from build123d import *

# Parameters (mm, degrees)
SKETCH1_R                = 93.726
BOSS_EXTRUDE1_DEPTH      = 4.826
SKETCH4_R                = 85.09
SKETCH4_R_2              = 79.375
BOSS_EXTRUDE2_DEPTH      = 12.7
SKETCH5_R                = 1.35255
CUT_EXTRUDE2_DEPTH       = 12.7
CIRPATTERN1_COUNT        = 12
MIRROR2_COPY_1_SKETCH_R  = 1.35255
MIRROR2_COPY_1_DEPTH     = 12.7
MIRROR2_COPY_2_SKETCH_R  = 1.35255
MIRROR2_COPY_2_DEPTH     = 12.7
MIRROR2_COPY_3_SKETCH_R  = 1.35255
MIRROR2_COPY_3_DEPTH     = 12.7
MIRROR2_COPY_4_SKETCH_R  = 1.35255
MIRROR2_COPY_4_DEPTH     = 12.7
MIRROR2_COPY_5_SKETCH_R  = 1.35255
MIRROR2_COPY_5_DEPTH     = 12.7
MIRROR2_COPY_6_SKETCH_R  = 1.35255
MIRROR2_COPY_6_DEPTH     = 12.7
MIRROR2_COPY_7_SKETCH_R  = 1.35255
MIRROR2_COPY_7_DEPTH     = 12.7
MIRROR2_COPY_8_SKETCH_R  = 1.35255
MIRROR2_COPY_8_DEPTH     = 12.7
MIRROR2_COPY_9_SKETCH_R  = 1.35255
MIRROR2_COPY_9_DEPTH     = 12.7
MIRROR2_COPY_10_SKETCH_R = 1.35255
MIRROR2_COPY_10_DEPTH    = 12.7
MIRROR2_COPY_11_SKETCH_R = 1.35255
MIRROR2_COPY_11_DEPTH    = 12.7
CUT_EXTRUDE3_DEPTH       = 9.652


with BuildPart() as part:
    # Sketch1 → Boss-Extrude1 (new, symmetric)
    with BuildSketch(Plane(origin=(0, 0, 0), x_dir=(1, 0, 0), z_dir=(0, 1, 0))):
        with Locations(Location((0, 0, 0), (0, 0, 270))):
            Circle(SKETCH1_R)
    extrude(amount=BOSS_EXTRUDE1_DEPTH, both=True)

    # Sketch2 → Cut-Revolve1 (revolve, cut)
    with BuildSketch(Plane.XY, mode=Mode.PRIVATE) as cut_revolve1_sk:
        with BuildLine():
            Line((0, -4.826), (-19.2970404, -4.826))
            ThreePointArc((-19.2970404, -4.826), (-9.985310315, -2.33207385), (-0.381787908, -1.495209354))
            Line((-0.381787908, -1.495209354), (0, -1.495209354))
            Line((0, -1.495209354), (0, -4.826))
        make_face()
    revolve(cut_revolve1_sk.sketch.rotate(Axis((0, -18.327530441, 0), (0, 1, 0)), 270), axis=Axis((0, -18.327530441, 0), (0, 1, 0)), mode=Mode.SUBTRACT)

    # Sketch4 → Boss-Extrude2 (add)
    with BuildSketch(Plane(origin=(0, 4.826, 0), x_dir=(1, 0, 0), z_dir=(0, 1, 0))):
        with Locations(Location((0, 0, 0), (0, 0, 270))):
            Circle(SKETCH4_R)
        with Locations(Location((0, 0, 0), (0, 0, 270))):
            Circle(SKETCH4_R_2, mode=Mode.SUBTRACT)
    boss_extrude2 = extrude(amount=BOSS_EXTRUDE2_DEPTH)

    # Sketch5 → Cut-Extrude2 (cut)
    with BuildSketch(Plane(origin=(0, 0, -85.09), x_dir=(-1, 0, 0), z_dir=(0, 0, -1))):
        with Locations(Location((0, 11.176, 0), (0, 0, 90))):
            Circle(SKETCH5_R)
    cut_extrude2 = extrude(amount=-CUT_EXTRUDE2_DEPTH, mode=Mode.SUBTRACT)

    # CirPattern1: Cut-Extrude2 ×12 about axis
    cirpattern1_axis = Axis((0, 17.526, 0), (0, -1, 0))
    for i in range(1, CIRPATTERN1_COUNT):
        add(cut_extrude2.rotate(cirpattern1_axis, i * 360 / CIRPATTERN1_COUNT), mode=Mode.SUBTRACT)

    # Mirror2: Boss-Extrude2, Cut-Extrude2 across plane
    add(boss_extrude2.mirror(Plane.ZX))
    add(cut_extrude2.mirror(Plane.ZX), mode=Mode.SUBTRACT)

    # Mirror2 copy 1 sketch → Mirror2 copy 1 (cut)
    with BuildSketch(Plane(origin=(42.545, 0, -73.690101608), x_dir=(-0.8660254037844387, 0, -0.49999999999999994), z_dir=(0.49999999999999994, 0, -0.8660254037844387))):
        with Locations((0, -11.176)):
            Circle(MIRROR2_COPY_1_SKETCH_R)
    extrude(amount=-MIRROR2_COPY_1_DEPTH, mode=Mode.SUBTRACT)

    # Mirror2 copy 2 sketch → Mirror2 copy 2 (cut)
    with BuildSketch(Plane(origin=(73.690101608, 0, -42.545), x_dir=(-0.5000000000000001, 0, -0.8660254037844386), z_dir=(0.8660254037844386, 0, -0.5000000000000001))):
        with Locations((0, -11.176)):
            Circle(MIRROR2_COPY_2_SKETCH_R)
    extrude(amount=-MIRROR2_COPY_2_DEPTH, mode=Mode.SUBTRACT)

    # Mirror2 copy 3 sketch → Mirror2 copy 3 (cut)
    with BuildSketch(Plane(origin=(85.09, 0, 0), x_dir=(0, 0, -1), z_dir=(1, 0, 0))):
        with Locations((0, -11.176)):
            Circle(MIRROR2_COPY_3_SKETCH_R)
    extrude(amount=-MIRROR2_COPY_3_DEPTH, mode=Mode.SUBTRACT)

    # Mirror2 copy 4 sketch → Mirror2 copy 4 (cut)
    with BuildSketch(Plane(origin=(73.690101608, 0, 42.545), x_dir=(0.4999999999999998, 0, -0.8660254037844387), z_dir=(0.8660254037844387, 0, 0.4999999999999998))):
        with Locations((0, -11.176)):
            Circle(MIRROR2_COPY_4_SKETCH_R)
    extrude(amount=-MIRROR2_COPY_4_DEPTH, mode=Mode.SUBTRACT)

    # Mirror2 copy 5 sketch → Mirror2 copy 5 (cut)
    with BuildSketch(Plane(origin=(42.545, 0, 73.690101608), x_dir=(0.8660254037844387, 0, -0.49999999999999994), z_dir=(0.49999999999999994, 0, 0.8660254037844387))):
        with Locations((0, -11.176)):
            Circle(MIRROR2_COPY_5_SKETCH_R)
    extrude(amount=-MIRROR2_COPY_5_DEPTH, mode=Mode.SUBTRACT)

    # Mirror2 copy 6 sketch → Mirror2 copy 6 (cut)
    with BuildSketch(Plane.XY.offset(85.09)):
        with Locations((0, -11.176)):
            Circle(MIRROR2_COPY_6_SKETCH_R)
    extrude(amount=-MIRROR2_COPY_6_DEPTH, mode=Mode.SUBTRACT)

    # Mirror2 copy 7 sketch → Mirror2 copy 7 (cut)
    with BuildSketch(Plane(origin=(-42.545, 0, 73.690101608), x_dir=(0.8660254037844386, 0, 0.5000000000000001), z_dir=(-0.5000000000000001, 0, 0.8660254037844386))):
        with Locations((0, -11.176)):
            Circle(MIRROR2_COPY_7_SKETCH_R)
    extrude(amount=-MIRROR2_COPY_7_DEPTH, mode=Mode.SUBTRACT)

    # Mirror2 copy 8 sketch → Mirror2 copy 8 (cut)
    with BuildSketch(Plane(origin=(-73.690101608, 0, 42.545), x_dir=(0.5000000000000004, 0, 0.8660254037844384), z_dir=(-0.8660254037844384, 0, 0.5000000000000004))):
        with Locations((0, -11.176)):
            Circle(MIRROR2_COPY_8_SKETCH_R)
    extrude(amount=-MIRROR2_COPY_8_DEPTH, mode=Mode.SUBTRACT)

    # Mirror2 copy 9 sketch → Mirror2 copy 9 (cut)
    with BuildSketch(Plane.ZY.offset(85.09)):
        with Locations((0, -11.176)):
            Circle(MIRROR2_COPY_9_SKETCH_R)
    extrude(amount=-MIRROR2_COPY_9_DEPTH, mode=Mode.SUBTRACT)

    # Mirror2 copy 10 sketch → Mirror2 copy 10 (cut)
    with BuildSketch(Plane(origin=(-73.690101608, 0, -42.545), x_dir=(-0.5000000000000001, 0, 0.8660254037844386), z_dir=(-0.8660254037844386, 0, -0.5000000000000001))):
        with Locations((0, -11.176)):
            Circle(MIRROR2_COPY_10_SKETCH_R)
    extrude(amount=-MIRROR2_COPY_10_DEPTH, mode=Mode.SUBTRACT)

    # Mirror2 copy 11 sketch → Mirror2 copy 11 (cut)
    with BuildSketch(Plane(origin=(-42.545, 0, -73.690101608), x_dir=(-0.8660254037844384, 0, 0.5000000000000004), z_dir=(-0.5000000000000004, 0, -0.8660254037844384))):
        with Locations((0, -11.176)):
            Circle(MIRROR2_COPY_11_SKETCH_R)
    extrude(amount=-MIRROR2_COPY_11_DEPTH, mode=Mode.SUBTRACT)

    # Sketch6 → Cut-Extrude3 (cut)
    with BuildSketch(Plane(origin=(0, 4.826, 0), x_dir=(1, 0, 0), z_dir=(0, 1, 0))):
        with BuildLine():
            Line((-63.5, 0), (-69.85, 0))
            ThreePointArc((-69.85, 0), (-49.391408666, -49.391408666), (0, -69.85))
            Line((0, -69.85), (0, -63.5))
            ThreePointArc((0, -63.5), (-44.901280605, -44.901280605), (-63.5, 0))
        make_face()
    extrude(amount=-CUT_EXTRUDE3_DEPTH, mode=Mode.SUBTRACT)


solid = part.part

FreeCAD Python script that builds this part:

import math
import FreeCAD as App
import Part
import Sketcher
from FreeCAD import Vector
Q = App.Units.Quantity

doc = App.newDocument("Part")
body = doc.addObject("PartDesign::Body", "Body")

# Sketch on XZ plane
sketch1 = body.newObject("Sketcher::SketchObject", "Sketch")
sketch1.AttachmentSupport = (doc.getObject("XZ_Plane"), [""])
sketch1.MapMode = "FlatFace"
sketch1.addGeometry(Part.Circle(Vector(0, 0, 0), Vector(0, 0, 1), 94), False)
sketch1.addConstraint(Sketcher.Constraint("Coincident", 0, 3, -1, 1))
sketch1.addConstraint(Sketcher.Constraint("Diameter", 0, Q("7.38 in")))
pad1 = body.newObject("PartDesign::Pad", "Pad")
pad1.Profile = sketch1
pad1.Length = Q("0.38 in")
pad1.Midplane = True

# Sketch on XY plane
sketch2 = body.newObject("Sketcher::SketchObject", "Sketch001")
sketch2.AttachmentSupport = (doc.getObject("XY_Plane"), [""])
sketch2.MapMode = "FlatFace"
sketch2.addGeometry(Part.LineSegment(Vector(-19.3, -4.83, 0), Vector(0, -4.83, 0)), False)
sketch2.addGeometry(Part.LineSegment(Vector(0, -4.83, 0), Vector(0, -1.5, 0)), False)
sketch2.addGeometry(Part.LineSegment(Vector(0, -1.5, 0), Vector(-0.38, -1.5, 0)), False)
sketch2.addGeometry(Part.ArcOfCircle(Part.Circle(Vector(-0.41, -56.73, 0), Vector(0, 0, 1), 55.23), math.radians(90), math.radians(110)), False)
sketch2.addConstraint(Sketcher.Constraint("Coincident", 0, 2, 1, 1))
sketch2.addConstraint(Sketcher.Constraint("Coincident", 1, 2, 2, 1))
sketch2.addConstraint(Sketcher.Constraint("Coincident", 2, 2, 3, 1))
sketch2.addConstraint(Sketcher.Constraint("Coincident", 3, 2, 0, 1))
sketch2.addConstraint(Sketcher.Constraint("Horizontal", 0))
sketch2.addConstraint(Sketcher.Constraint("Vertical", 1))
sketch2.addConstraint(Sketcher.Constraint("Horizontal", 2))
sketch2.addConstraint(Sketcher.Constraint("PointOnObject", 0, 2, -2))
sketch2.addConstraint(Sketcher.Constraint("DistanceY", 0, 2, -1, 1, Q("0.19 in")))
sketch2.addConstraint(Sketcher.Constraint("Radius", 3, 55.230234))
sketch2.addConstraint(Sketcher.Constraint("DistanceX", 0, 1, 0, 2, 19.29704))
sketch2.addConstraint(Sketcher.Constraint("DistanceY", 1, 1, 1, 2, 3.330791))
sketch2.addConstraint(Sketcher.Constraint("DistanceX", 2, 2, 2, 1, 0.381788))
groove = body.newObject("PartDesign::Groove", "Groove")
groove.Profile = sketch2
groove.ReferenceAxis = (sketch2, ["V_Axis"])
groove.Angle = 360

# Sketch on XZ plane
sketch3 = body.newObject("Sketcher::SketchObject", "Sketch002")
sketch3.AttachmentSupport = (doc.getObject("XZ_Plane"), [""])
sketch3.MapMode = "FlatFace"
sketch3.AttachmentOffset = App.Placement(Vector(0, 0, -0.19 * 25.4), App.Rotation())
sketch3.addGeometry(Part.Circle(Vector(0, 0, 0), Vector(0, 0, 1), 85), False)
sketch3.addGeometry(Part.Circle(Vector(0, 0, 0), Vector(0, 0, 1), 79), False)
sketch3.addConstraint(Sketcher.Constraint("Coincident", 0, 3, -1, 1))
sketch3.addConstraint(Sketcher.Constraint("Coincident", 1, 3, -1, 1))
sketch3.addConstraint(Sketcher.Constraint("Diameter", 0, Q("6.7 in")))
sketch3.addConstraint(Sketcher.Constraint("Diameter", 1, Q("6.25 in")))
pad2 = body.newObject("PartDesign::Pad", "Pad001")
pad2.Profile = sketch3
pad2.Length = Q("0.5 in")
pad2.Reversed = True

# Sketch on XY plane
sketch4 = body.newObject("Sketcher::SketchObject", "Sketch003")
sketch4.AttachmentSupport = (doc.getObject("XY_Plane"), [""])
sketch4.MapMode = "FlatFace"
sketch4.AttachmentOffset = App.Placement(Vector(0, 0, -3.35 * 25.4), App.Rotation())
sketch4.addGeometry(Part.Circle(Vector(0, 11.2, 0), Vector(0, 0, 1), 1.4), False)
sketch4.addConstraint(Sketcher.Constraint("PointOnObject", 0, 3, -2))
sketch4.addConstraint(Sketcher.Constraint("Diameter", 0, Q("0.1065 in")))
sketch4.addConstraint(Sketcher.Constraint("DistanceY", -1, 1, 0, 3, Q("0.44 in")))
pocket1 = body.newObject("PartDesign::Pocket", "Pocket")
pocket1.Profile = sketch4
pocket1.Length = Q("0.5 in")
pocket1.Reversed = True
doc.recompute()

polarpattern = body.newObject("PartDesign::PolarPattern", "PolarPattern")
polarpattern.Originals = [pocket1]
polarpattern.Axis = (doc.getObject("Y_Axis"), [""])
polarpattern.Angle = 360
polarpattern.Occurrences = 12
body.Tip = polarpattern
doc.recompute()

mirrored = body.newObject("PartDesign::Mirrored", "Mirrored")
mirrored.Originals = [pad2, pocket1]
mirrored.MirrorPlane = (doc.getObject("XZ_Plane"), [""])
body.Tip = mirrored

# Sketch on an angled plane
sketch5 = body.newObject("Sketcher::SketchObject", "Sketch004")
sketch5.Placement = App.Placement(Vector(42.545, 0, -73.690102), App.Rotation(Vector(-0.866025404, 0, -0.5), Vector(0, 1, 0), Vector(0.5, 0, -0.866025404), "ZXY"))
sketch5.addGeometry(Part.Circle(Vector(0, -11.2, 0), Vector(0, 0, 1), 1.4), False)
sketch5.addConstraint(Sketcher.Constraint("PointOnObject", 0, 3, -2))
sketch5.addConstraint(Sketcher.Constraint("Diameter", 0, Q("0.1065 in")))
sketch5.addConstraint(Sketcher.Constraint("DistanceY", 0, 3, -1, 1, Q("0.44 in")))
pocket2 = body.newObject("PartDesign::Pocket", "Pocket001")
pocket2.Profile = sketch5
pocket2.Length = Q("0.5 in")

# Sketch on an angled plane
sketch6 = body.newObject("Sketcher::SketchObject", "Sketch005")
sketch6.Placement = App.Placement(Vector(73.690102, 0, -42.545), App.Rotation(Vector(-0.5, 0, -0.866025404), Vector(0, 1, 0), Vector(0.866025404, 0, -0.5), "ZXY"))
sketch6.addGeometry(Part.Circle(Vector(0, -11.2, 0), Vector(0, 0, 1), 1.4), False)
sketch6.addConstraint(Sketcher.Constraint("PointOnObject", 0, 3, -2))
sketch6.addConstraint(Sketcher.Constraint("Diameter", 0, Q("0.1065 in")))
sketch6.addConstraint(Sketcher.Constraint("DistanceY", 0, 3, -1, 1, Q("0.44 in")))
pocket3 = body.newObject("PartDesign::Pocket", "Pocket002")
pocket3.Profile = sketch6
pocket3.Length = Q("0.5 in")

# Sketch on YZ plane
sketch7 = body.newObject("Sketcher::SketchObject", "Sketch006")
sketch7.AttachmentSupport = (doc.getObject("YZ_Plane"), [""])
sketch7.MapMode = "FlatFace"
sketch7.AttachmentOffset = App.Placement(Vector(0, 0, 3.35 * 25.4), App.Rotation())
sketch7.addGeometry(Part.Circle(Vector(-11.2, 0, 0), Vector(0, 0, 1), 1.4), False)
sketch7.addConstraint(Sketcher.Constraint("PointOnObject", 0, 3, -1))
sketch7.addConstraint(Sketcher.Constraint("Diameter", 0, Q("0.1065 in")))
sketch7.addConstraint(Sketcher.Constraint("DistanceX", 0, 3, -1, 1, Q("0.44 in")))
pocket4 = body.newObject("PartDesign::Pocket", "Pocket003")
pocket4.Profile = sketch7
pocket4.Length = Q("0.5 in")

# Sketch on an angled plane
sketch8 = body.newObject("Sketcher::SketchObject", "Sketch007")
sketch8.Placement = App.Placement(Vector(73.690102, 0, 42.545), App.Rotation(Vector(0.5, 0, -0.866025404), Vector(0, 1, 0), Vector(0.866025404, 0, 0.5), "ZXY"))
sketch8.addGeometry(Part.Circle(Vector(0, -11.2, 0), Vector(0, 0, 1), 1.4), False)
sketch8.addConstraint(Sketcher.Constraint("PointOnObject", 0, 3, -2))
sketch8.addConstraint(Sketcher.Constraint("Diameter", 0, Q("0.1065 in")))
sketch8.addConstraint(Sketcher.Constraint("DistanceY", 0, 3, -1, 1, Q("0.44 in")))
pocket5 = body.newObject("PartDesign::Pocket", "Pocket004")
pocket5.Profile = sketch8
pocket5.Length = Q("0.5 in")

# Sketch on an angled plane
sketch9 = body.newObject("Sketcher::SketchObject", "Sketch008")
sketch9.Placement = App.Placement(Vector(42.545, 0, 73.690102), App.Rotation(Vector(0.866025404, 0, -0.5), Vector(0, 1, 0), Vector(0.5, 0, 0.866025404), "ZXY"))
sketch9.addGeometry(Part.Circle(Vector(0, -11.2, 0), Vector(0, 0, 1), 1.4), False)
sketch9.addConstraint(Sketcher.Constraint("PointOnObject", 0, 3, -2))
sketch9.addConstraint(Sketcher.Constraint("Diameter", 0, Q("0.1065 in")))
sketch9.addConstraint(Sketcher.Constraint("DistanceY", 0, 3, -1, 1, Q("0.44 in")))
pocket6 = body.newObject("PartDesign::Pocket", "Pocket005")
pocket6.Profile = sketch9
pocket6.Length = Q("0.5 in")

# Sketch on XY plane
sketch10 = body.newObject("Sketcher::SketchObject", "Sketch009")
sketch10.AttachmentSupport = (doc.getObject("XY_Plane"), [""])
sketch10.MapMode = "FlatFace"
sketch10.AttachmentOffset = App.Placement(Vector(0, 0, 3.35 * 25.4), App.Rotation())
sketch10.addGeometry(Part.Circle(Vector(0, -11.2, 0), Vector(0, 0, 1), 1.4), False)
sketch10.addConstraint(Sketcher.Constraint("PointOnObject", 0, 3, -2))
sketch10.addConstraint(Sketcher.Constraint("Diameter", 0, Q("0.1065 in")))
sketch10.addConstraint(Sketcher.Constraint("DistanceY", 0, 3, -1, 1, Q("0.44 in")))
pocket7 = body.newObject("PartDesign::Pocket", "Pocket006")
pocket7.Profile = sketch10
pocket7.Length = Q("0.5 in")

# Sketch on an angled plane
sketch11 = body.newObject("Sketcher::SketchObject", "Sketch010")
sketch11.Placement = App.Placement(Vector(-42.545, 0, 73.690102), App.Rotation(Vector(0.866025404, 0, 0.5), Vector(0, 1, 0), Vector(-0.5, 0, 0.866025404), "ZXY"))
sketch11.addGeometry(Part.Circle(Vector(0, -11.2, 0), Vector(0, 0, 1), 1.4), False)
sketch11.addConstraint(Sketcher.Constraint("PointOnObject", 0, 3, -2))
sketch11.addConstraint(Sketcher.Constraint("Diameter", 0, Q("0.1065 in")))
sketch11.addConstraint(Sketcher.Constraint("DistanceY", 0, 3, -1, 1, Q("0.44 in")))
pocket8 = body.newObject("PartDesign::Pocket", "Pocket007")
pocket8.Profile = sketch11
pocket8.Length = Q("0.5 in")

# Sketch on an angled plane
sketch12 = body.newObject("Sketcher::SketchObject", "Sketch011")
sketch12.Placement = App.Placement(Vector(-73.690102, 0, 42.545), App.Rotation(Vector(0.5, 0, 0.866025404), Vector(0, 1, 0), Vector(-0.866025404, 0, 0.5), "ZXY"))
sketch12.addGeometry(Part.Circle(Vector(0, -11.2, 0), Vector(0, 0, 1), 1.4), False)
sketch12.addConstraint(Sketcher.Constraint("PointOnObject", 0, 3, -2))
sketch12.addConstraint(Sketcher.Constraint("Diameter", 0, Q("0.1065 in")))
sketch12.addConstraint(Sketcher.Constraint("DistanceY", 0, 3, -1, 1, Q("0.44 in")))
pocket9 = body.newObject("PartDesign::Pocket", "Pocket008")
pocket9.Profile = sketch12
pocket9.Length = Q("0.5 in")

# Sketch on YZ plane
sketch13 = body.newObject("Sketcher::SketchObject", "Sketch012")
sketch13.AttachmentSupport = (doc.getObject("YZ_Plane"), [""])
sketch13.MapMode = "FlatFace"
sketch13.AttachmentOffset = App.Placement(Vector(0, 0, -3.35 * 25.4), App.Rotation())
sketch13.addGeometry(Part.Circle(Vector(-11.2, 0, 0), Vector(0, 0, 1), 1.4), False)
sketch13.addConstraint(Sketcher.Constraint("PointOnObject", 0, 3, -1))
sketch13.addConstraint(Sketcher.Constraint("Diameter", 0, Q("0.1065 in")))
sketch13.addConstraint(Sketcher.Constraint("DistanceX", 0, 3, -1, 1, Q("0.44 in")))
pocket10 = body.newObject("PartDesign::Pocket", "Pocket009")
pocket10.Profile = sketch13
pocket10.Length = Q("0.5 in")
pocket10.Reversed = True

# Sketch on an angled plane
sketch14 = body.newObject("Sketcher::SketchObject", "Sketch013")
sketch14.Placement = App.Placement(Vector(-73.690102, 0, -42.545), App.Rotation(Vector(-0.5, 0, 0.866025404), Vector(0, 1, 0), Vector(-0.866025404, 0, -0.5), "ZXY"))
sketch14.addGeometry(Part.Circle(Vector(0, -11.2, 0), Vector(0, 0, 1), 1.4), False)
sketch14.addConstraint(Sketcher.Constraint("PointOnObject", 0, 3, -2))
sketch14.addConstraint(Sketcher.Constraint("Diameter", 0, Q("0.1065 in")))
sketch14.addConstraint(Sketcher.Constraint("DistanceY", 0, 3, -1, 1, Q("0.44 in")))
pocket11 = body.newObject("PartDesign::Pocket", "Pocket010")
pocket11.Profile = sketch14
pocket11.Length = Q("0.5 in")

# Sketch on an angled plane
sketch15 = body.newObject("Sketcher::SketchObject", "Sketch014")
sketch15.Placement = App.Placement(Vector(-42.545, 0, -73.690102), App.Rotation(Vector(-0.866025404, 0, 0.5), Vector(0, 1, 0), Vector(-0.5, 0, -0.866025404), "ZXY"))
sketch15.addGeometry(Part.Circle(Vector(0, -11.2, 0), Vector(0, 0, 1), 1.4), False)
sketch15.addConstraint(Sketcher.Constraint("PointOnObject", 0, 3, -2))
sketch15.addConstraint(Sketcher.Constraint("Diameter", 0, Q("0.1065 in")))
sketch15.addConstraint(Sketcher.Constraint("DistanceY", 0, 3, -1, 1, Q("0.44 in")))
pocket12 = body.newObject("PartDesign::Pocket", "Pocket011")
pocket12.Profile = sketch15
pocket12.Length = Q("0.5 in")

# Sketch on XZ plane
sketch16 = body.newObject("Sketcher::SketchObject", "Sketch015")
sketch16.AttachmentSupport = (doc.getObject("XZ_Plane"), [""])
sketch16.MapMode = "FlatFace"
sketch16.AttachmentOffset = App.Placement(Vector(0, 0, -0.19 * 25.4), App.Rotation())
sketch16.addGeometry(Part.LineSegment(Vector(-64, 0, 0), Vector(-70, 0, 0)), False)
sketch16.addGeometry(Part.ArcOfCircle(Part.Circle(Vector(0, 0, 0), Vector(0, 0, 1), 70), math.radians(90), math.radians(180)), False)
sketch16.addGeometry(Part.LineSegment(Vector(0, 70, 0), Vector(0, 64, 0)), False)
sketch16.addGeometry(Part.ArcOfCircle(Part.Circle(Vector(0, 0, 0), Vector(0, 0, 1), 64), math.radians(90), math.radians(180)), False)
sketch16.addConstraint(Sketcher.Constraint("Coincident", 0, 2, 1, 2))
sketch16.addConstraint(Sketcher.Constraint("Coincident", 1, 1, 2, 1))
sketch16.addConstraint(Sketcher.Constraint("Coincident", 2, 2, 3, 1))
sketch16.addConstraint(Sketcher.Constraint("Coincident", 3, 2, 0, 1))
sketch16.addConstraint(Sketcher.Constraint("Horizontal", 0))
sketch16.addConstraint(Sketcher.Constraint("Vertical", 2))
sketch16.addConstraint(Sketcher.Constraint("Coincident", 1, 3, -1, 1))
sketch16.addConstraint(Sketcher.Constraint("Coincident", 3, 3, -1, 1))
sketch16.addConstraint(Sketcher.Constraint("PointOnObject", 0, 2, -1))
sketch16.addConstraint(Sketcher.Constraint("PointOnObject", 1, 1, -2))
sketch16.addConstraint(Sketcher.Constraint("Radius", 3, Q("2.5 in")))
sketch16.addConstraint(Sketcher.Constraint("Radius", 1, Q("2.75 in")))
pocket13 = body.newObject("PartDesign::Pocket", "Pocket012")
pocket13.Profile = sketch16
pocket13.Length = Q("0.38 in")
pocket13.Reversed = True

doc.recompute()
